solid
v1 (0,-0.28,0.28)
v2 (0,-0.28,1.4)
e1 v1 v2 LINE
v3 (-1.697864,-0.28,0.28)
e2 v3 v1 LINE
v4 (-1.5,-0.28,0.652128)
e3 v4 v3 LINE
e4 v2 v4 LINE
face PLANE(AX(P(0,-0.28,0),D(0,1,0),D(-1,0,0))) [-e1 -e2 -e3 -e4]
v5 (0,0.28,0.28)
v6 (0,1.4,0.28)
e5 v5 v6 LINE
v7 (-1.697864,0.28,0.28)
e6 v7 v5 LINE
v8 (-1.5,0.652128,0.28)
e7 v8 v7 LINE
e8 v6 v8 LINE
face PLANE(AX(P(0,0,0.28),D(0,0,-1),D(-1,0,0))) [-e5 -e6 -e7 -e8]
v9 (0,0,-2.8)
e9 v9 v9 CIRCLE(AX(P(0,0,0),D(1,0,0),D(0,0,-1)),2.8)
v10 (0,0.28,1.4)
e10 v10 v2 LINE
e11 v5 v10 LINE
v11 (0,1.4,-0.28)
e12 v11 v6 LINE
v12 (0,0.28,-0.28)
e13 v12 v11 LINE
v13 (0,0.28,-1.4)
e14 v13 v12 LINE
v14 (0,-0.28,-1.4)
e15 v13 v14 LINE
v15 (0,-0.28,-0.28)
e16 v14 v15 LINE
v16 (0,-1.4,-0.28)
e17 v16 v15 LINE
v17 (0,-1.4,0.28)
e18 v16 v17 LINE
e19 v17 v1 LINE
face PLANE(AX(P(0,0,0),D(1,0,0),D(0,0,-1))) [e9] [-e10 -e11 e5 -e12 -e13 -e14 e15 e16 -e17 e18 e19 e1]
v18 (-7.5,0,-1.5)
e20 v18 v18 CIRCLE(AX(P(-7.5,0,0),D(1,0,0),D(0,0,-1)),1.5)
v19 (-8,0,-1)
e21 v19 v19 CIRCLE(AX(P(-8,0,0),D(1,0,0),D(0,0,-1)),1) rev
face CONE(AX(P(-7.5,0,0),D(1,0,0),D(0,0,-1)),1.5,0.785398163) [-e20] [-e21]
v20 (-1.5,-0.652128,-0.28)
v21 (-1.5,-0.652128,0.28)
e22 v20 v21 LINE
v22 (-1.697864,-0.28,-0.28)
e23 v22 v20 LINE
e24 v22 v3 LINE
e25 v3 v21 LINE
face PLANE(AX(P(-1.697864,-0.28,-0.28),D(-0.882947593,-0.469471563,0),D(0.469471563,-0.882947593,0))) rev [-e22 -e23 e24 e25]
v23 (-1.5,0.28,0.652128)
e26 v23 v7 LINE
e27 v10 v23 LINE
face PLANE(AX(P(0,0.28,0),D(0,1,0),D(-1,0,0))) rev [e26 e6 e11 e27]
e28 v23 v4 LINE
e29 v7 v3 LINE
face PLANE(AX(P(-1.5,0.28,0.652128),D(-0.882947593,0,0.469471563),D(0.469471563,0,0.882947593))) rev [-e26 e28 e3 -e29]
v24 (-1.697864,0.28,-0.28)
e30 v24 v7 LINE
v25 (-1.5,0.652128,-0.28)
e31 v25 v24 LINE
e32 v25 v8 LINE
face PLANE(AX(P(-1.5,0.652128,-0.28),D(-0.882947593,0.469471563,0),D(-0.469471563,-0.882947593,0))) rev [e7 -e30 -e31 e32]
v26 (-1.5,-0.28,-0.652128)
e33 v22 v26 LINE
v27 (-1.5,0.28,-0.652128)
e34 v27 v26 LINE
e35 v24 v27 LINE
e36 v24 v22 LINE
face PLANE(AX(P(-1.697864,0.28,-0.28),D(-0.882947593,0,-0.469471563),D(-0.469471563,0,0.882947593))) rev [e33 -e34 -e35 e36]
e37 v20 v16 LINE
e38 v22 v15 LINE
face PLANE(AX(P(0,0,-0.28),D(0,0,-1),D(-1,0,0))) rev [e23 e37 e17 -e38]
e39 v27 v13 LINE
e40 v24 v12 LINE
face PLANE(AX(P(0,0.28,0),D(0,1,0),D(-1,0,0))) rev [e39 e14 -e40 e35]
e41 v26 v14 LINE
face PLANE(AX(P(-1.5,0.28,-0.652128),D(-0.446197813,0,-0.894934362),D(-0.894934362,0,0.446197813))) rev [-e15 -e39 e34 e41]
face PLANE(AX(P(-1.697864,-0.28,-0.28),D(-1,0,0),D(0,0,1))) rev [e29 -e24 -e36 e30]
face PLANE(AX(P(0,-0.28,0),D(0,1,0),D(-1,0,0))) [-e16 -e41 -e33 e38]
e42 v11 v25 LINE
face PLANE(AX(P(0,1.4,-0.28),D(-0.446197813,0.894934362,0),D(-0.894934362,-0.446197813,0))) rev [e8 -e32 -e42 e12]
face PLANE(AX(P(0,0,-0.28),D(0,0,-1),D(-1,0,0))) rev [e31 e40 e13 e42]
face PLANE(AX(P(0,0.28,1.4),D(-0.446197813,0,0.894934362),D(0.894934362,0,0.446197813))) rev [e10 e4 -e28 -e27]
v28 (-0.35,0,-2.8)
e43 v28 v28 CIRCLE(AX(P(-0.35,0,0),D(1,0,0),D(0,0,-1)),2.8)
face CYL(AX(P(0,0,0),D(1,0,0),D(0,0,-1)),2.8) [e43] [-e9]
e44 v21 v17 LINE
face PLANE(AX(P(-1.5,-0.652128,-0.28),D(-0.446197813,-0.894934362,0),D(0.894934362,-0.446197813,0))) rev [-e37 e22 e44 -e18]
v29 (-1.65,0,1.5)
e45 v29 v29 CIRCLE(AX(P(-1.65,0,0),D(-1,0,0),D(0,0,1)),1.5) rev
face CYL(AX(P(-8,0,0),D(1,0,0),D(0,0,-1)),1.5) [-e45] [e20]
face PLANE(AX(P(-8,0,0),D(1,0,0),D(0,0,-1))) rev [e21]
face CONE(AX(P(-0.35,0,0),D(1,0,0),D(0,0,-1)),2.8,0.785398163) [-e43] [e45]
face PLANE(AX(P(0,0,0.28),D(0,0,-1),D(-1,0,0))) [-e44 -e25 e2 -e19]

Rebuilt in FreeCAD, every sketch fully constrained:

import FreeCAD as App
import Part
import Sketcher
from FreeCAD import Vector
Q = App.Units.Quantity


def edges_at(feature, points):
    """Names of the edges that pass closest to the given points."""
    edges = feature.Shape.Edges
    near = lambda p: min(range(len(edges)), key=lambda i: edges[i].distToShape(Part.Vertex(*p))[0])
    return sorted({f"Edge{near(p) + 1}" for p in points})

doc = App.newDocument("Part")
body = doc.addObject("PartDesign::Body", "Body")

# Sketch on YZ plane
sketch1 = doc.addObject("Sketcher::SketchObject", "Sketch")
body.addObject(sketch1)
sketch1.AttachmentSupport = (doc.YZ_Plane, [""])
sketch1.MapMode = "FlatFace"
sketch1.addGeometry(Part.Circle(Vector(0, 0, 0), Vector(0, 0, 1), 1.5), False)
sketch1.addConstraint([
    Sketcher.Constraint("Coincident", 0, 3, -1, 1),
    Sketcher.Constraint("Diameter", 0, 3.0),
])
pad1 = doc.addObject("PartDesign::Pad", "Pad")
body.addObject(pad1)
pad1.Profile = sketch1
pad1.Length = 8
pad1.Reversed = True
doc.recompute()

chamfer = doc.addObject("PartDesign::Chamfer", "Chamfer")
body.addObject(chamfer)
chamfer.Base = (pad1, edges_at(pad1, [(-8, 0, 1.5)]))
chamfer.Size = 0.5

# Sketch on XY plane
sketch2 = doc.addObject("Sketcher::SketchObject", "Sketch001")
body.addObject(sketch2)
sketch2.AttachmentSupport = (doc.XY_Plane, [""])
sketch2.MapMode = "FlatFace"
sketch2.addGeometry([
    Part.LineSegment(Vector(0, 0, 0), Vector(0, 2.8, 0)),  # 0
    Part.LineSegment(Vector(0, 2.8, 0), Vector(-0.35, 2.8, 0)),  # 1
    Part.LineSegment(Vector(-0.35, 2.8, 0), Vector(-1.65, 1.5, 0)),  # 2
    Part.LineSegment(Vector(-1.65, 1.5, 0), Vector(-1.65, 0, 0)),  # 3
    Part.LineSegment(Vector(-1.65, 0, 0), Vector(0, 0, 0)),  # 4
], False)
sketch2.addConstraint([
    Sketcher.Constraint("Coincident", 0, 2, 1, 1),
    Sketcher.Constraint("Coincident", 1, 2, 2, 1),
    Sketcher.Constraint("Coincident", 2, 2, 3, 1),
    Sketcher.Constraint("Coincident", 3, 2, 4, 1),
    Sketcher.Constraint("Coincident", 4, 2, 0, 1),
    Sketcher.Constraint("Vertical", 0),
    Sketcher.Constraint("Horizontal", 1),
    Sketcher.Constraint("Vertical", 3),
    Sketcher.Constraint("Horizontal", 4),
    Sketcher.Constraint("Coincident", 4, 2, -1, 1),
    Sketcher.Constraint("Angle", 2, Q("-135 deg")),
    Sketcher.Constraint("DistanceY", 0, 1, 0, 2, 2.8),
    Sketcher.Constraint("DistanceY", 3, 2, 3, 1, 1.5),
    Sketcher.Constraint("DistanceX", 1, 2, 1, 1, 0.35),
])
revolution = doc.addObject("PartDesign::Revolution", "Revolution")
body.addObject(revolution)
revolution.Profile = sketch2
revolution.ReferenceAxis = (sketch2, ["H_Axis"])
revolution.Angle = 360

# Sketch on XY plane
sketch3 = doc.addObject("Sketcher::SketchObject", "Sketch002")
body.addObject(sketch3)
sketch3.AttachmentSupport = (doc.XY_Plane, [""])
sketch3.MapMode = "FlatFace"
sketch3.addGeometry([
    Part.LineSegment(Vector(0, -1.4, 0), Vector(0, 1.4, 0)),  # 0
    Part.LineSegment(Vector(0, 1.4, 0), Vector(-1.5, 0.652128, 0)),  # 1
    Part.LineSegment(Vector(-1.5, 0.652128, 0), Vector(-1.697864, 0.28, 0)),  # 2
    Part.LineSegment(Vector(-1.697864, 0.28, 0), Vector(-1.697864, -0.28, 0)),  # 3
    Part.LineSegment(Vector(-1.697864, -0.28, 0), Vector(-1.5, -0.652128, 0)),  # 4
    Part.LineSegment(Vector(-1.5, -0.652128, 0), Vector(0, -1.4, 0)),  # 5
], False)
sketch3.addConstraint([
    Sketcher.Constraint("Coincident", 0, 2, 1, 1),
    Sketcher.Constraint("Coincident", 1, 2, 2, 1),
    Sketcher.Constraint("Coincident", 2, 2, 3, 1),
    Sketcher.Constraint("Coincident", 3, 2, 4, 1),
    Sketcher.Constraint("Coincident", 4, 2, 5, 1),
    Sketcher.Constraint("Coincident", 5, 2, 0, 1),
    Sketcher.Constraint("Vertical", 0),
    Sketcher.Constraint("Vertical", 3),
    Sketcher.Constraint("Symmetric", 0, 2, 5, 2, -1, 1),
    Sketcher.Constraint("Symmetric", 1, 2, 4, 2, -1),
    Sketcher.Constraint("Equal", 2, 4),
    Sketcher.Constraint("Angle", 2, Q("-118 deg")),
    Sketcher.Constraint("DistanceY", 0, 1, 0, 2, 2.8),
    Sketcher.Constraint("Angle", 1, Q("-153.5 deg")),
    Sketcher.Constraint("DistanceY", 3, 2, 3, 1, 0.56),
    Sketcher.Constraint("DistanceX", 1, 2, -1, 1, 1.5),
])
pocket1 = doc.addObject("PartDesign::Pocket", "Pocket")
body.addObject(pocket1)
pocket1.Profile = sketch3
pocket1.Length = 0.56
pocket1.Midplane = True
doc.recompute()

polarpattern = doc.addObject("PartDesign::PolarPattern", "PolarPattern")
body.addObject(polarpattern)
polarpattern.Originals = [pocket1]
polarpattern.Axis = (doc.X_Axis, [""])
polarpattern.Angle = 90
polarpattern.Occurrences = 2
body.Tip = polarpattern

doc.recompute()
